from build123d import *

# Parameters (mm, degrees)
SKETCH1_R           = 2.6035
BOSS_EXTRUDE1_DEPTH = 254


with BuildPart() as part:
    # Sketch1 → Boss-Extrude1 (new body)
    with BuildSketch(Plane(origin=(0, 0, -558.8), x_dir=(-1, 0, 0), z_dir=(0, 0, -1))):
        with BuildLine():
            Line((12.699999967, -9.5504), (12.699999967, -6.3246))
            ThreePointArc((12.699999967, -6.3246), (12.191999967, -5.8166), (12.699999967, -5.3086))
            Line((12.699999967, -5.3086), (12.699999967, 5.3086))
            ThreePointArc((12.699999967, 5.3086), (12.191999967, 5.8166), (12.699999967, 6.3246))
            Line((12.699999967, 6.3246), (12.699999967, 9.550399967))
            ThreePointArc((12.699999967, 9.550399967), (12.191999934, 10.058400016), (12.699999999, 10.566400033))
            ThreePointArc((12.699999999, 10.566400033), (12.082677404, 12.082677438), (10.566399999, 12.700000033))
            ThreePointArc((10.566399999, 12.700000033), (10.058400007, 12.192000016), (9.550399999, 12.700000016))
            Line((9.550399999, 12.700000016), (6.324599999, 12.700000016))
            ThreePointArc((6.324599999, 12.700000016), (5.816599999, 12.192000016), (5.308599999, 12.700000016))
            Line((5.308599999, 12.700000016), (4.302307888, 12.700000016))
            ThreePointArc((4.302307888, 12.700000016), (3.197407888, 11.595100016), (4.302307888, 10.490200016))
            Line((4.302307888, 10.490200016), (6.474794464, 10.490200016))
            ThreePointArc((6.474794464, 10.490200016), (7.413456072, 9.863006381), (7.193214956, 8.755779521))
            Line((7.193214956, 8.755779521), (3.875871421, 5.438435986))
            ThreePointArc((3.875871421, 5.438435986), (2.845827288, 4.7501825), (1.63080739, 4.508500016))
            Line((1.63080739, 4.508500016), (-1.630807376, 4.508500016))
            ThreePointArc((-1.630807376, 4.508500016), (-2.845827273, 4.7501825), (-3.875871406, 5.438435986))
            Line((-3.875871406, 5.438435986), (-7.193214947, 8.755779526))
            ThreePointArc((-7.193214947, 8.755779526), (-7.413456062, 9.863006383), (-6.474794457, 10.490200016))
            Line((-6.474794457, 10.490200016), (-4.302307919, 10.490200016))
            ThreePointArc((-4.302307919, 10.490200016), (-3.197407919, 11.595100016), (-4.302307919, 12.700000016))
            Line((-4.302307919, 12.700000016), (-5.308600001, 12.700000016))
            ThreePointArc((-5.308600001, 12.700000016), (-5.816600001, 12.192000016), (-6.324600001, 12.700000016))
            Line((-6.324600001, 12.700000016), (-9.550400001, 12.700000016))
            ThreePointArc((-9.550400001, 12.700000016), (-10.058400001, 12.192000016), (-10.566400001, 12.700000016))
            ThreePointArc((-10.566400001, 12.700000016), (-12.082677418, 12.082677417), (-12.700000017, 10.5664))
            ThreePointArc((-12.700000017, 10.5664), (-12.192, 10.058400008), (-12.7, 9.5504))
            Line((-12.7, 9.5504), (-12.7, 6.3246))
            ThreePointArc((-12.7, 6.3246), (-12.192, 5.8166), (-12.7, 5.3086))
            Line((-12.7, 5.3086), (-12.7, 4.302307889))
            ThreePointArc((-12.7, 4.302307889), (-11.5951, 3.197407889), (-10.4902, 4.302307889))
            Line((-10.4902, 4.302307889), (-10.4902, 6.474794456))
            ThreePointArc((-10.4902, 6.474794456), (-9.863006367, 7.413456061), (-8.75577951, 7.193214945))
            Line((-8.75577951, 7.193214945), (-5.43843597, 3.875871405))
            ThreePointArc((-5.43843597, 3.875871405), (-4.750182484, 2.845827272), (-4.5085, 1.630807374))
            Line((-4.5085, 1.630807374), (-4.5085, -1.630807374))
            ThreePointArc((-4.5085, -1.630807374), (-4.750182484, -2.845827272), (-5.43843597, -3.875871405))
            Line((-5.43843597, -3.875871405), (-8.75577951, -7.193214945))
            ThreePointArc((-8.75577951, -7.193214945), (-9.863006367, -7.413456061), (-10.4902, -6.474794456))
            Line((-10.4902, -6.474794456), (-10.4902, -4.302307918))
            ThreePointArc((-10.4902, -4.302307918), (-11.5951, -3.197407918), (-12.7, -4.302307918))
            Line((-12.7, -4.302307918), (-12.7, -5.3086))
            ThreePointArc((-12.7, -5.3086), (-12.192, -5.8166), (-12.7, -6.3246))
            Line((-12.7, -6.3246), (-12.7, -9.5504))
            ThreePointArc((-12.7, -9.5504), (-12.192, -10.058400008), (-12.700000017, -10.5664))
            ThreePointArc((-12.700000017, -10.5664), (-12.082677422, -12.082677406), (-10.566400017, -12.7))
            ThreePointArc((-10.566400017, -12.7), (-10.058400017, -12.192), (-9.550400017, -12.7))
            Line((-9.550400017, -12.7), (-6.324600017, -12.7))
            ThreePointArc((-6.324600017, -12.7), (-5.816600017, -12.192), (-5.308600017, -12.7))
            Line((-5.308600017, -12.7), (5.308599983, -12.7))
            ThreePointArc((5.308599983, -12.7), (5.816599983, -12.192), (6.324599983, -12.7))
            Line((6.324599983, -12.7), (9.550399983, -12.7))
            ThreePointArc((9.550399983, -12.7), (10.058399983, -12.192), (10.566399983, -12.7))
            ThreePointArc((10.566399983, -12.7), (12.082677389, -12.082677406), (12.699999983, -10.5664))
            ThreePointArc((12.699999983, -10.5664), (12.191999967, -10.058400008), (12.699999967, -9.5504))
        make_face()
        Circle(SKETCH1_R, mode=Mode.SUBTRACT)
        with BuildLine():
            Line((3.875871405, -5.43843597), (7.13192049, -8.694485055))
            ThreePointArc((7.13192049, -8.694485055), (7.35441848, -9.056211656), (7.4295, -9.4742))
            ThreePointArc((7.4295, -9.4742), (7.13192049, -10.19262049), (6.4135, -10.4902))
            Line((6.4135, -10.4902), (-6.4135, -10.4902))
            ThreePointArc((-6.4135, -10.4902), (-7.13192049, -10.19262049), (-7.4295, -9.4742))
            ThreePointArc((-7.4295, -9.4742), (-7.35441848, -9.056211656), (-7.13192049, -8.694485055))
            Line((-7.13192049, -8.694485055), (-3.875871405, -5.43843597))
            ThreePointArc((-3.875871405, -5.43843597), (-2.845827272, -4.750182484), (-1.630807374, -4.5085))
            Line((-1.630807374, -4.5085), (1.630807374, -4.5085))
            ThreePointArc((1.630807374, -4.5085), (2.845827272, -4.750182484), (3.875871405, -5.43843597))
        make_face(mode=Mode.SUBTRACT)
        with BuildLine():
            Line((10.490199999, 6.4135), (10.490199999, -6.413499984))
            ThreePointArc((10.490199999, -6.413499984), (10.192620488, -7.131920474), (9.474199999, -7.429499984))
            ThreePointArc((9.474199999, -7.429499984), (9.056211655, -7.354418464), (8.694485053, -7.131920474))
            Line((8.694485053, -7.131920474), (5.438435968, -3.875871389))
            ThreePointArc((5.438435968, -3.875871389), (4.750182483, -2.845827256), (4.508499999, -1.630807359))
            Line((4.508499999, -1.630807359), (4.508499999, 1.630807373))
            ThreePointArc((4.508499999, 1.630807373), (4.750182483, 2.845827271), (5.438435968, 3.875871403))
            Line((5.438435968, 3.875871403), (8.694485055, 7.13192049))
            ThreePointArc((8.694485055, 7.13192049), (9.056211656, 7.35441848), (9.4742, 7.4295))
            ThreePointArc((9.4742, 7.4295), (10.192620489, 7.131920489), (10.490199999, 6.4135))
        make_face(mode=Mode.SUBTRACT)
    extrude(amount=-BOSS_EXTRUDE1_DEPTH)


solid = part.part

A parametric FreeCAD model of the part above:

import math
import FreeCAD as App
import Part
import Sketcher

V = App.Vector
Q = App.Units.Quantity

doc = App.newDocument("Part")
body = doc.addObject("PartDesign::Body", "Body")

# Sketch on XY plane
sketch1 = body.newObject("Sketcher::SketchObject", "Sketch")
sketch1.AttachmentSupport = (doc.getObject("XY_Plane"), [""])
sketch1.MapMode = "FlatFace"
sketch1.AttachmentOffset = App.Placement(V(0, 0, -22 * 25.4), App.Rotation())
sketch1.addGeometry([
    Part.LineSegment(V(-12.7, -9.6, 0), V(-12.7, -6.3, 0)),  # 0
    Part.ArcOfCircle(Part.Circle(V(-12.7, -5.8, 0), V(0, 0, 1), 0.5), math.radians(-90), math.radians(90)),  # 1
    Part.LineSegment(V(-12.7, -5.3, 0), V(-12.7, 5.3, 0)),  # 2
    Part.ArcOfCircle(Part.Circle(V(-12.7, 5.8, 0), V(0, 0, 1), 0.5), math.radians(-90), math.radians(90)),  # 3
    Part.LineSegment(V(-12.7, 6.3, 0), V(-12.7, 9.6, 0)),  # 4
    Part.ArcOfCircle(Part.Circle(V(-12.7, 10.1, 0), V(0, 0, 1), 0.5), math.radians(-90), math.radians(90)),  # 5
    Part.ArcOfCircle(Part.Circle(V(-10.6, 10.6, 0), V(0, 0, 1), 2.1), math.radians(89), math.radians(181)),  # 6
    Part.ArcOfCircle(Part.Circle(V(-10.1, 12.7, 0), V(0, 0, 1), 0.5), math.radians(180), math.radians(360)),  # 7
    Part.LineSegment(V(-9.6, 12.7, 0), V(-6.3, 12.7, 0)),  # 8
    Part.ArcOfCircle(Part.Circle(V(-5.8, 12.7, 0), V(0, 0, 1), 0.5), math.radians(180), math.radians(360)),  # 9
    Part.LineSegment(V(-5.3, 12.7, 0), V(-4.3, 12.7, 0)),  # 10
    Part.ArcOfCircle(Part.Circle(V(-4.3, 11.6, 0), V(0, 0, 1), 1.1), math.radians(-90), math.radians(90)),  # 11
    Part.LineSegment(V(-4.3, 10.5, 0), V(-6.5, 10.5, 0)),  # 12
    Part.ArcOfCircle(Part.Circle(V(-6.5, 9.5, 0), V(0, 0, 1), 1), math.radians(90), math.radians(225)),  # 13
    Part.LineSegment(V(-7.2, 8.8, 0), V(-3.9, 5.4, 0)),  # 14
    Part.ArcOfCircle(Part.Circle(V(-1.6, 7.7, 0), V(0, 0, 1), 3.2), math.radians(-135), math.radians(-90)),  # 15
    Part.LineSegment(V(-1.6, 4.5, 0), V(1.6, 4.5, 0)),  # 16
    Part.ArcOfCircle(Part.Circle(V(1.6, 7.7, 0), V(0, 0, 1), 3.2), math.radians(-90), math.radians(-45)),  # 17
    Part.LineSegment(V(3.9, 5.4, 0), V(7.2, 8.8, 0)),  # 18
    Part.ArcOfCircle(Part.Circle(V(6.5, 9.5, 0), V(0, 0, 1), 1), math.radians(-45), math.radians(90)),  # 19
    Part.LineSegment(V(6.5, 10.5, 0), V(4.3, 10.5, 0)),  # 20
    Part.ArcOfCircle(Part.Circle(V(4.3, 11.6, 0), V(0, 0, 1), 1.1), math.radians(90), math.radians(270)),  # 21
    Part.LineSegment(V(4.3, 12.7, 0), V(5.3, 12.7, 0)),  # 22
    Part.ArcOfCircle(Part.Circle(V(5.8, 12.7, 0), V(0, 0, 1), 0.5), math.radians(180), math.radians(360)),  # 23
    Part.LineSegment(V(6.3, 12.7, 0), V(9.6, 12.7, 0)),  # 24
    Part.ArcOfCircle(Part.Circle(V(10.1, 12.7, 0), V(0, 0, 1), 0.5), math.radians(180), math.radians(360)),  # 25
    Part.ArcOfCircle(Part.Circle(V(10.6, 10.6, 0), V(0, 0, 1), 2.1), math.radians(-1), math.radians(91)),  # 26
    Part.ArcOfCircle(Part.Circle(V(12.7, 10.1, 0), V(0, 0, 1), 0.5), math.radians(90), math.radians(270)),  # 27
    Part.LineSegment(V(12.7, 9.6, 0), V(12.7, 6.3, 0)),  # 28
    Part.ArcOfCircle(Part.Circle(V(12.7, 5.8, 0), V(0, 0, 1), 0.5), math.radians(90), math.radians(270)),  # 29
    Part.LineSegment(V(12.7, 5.3, 0), V(12.7, 4.3, 0)),  # 30
    Part.ArcOfCircle(Part.Circle(V(11.6, 4.3, 0), V(0, 0, 1), 1.1), math.radians(180), math.radians(360)),  # 31
    Part.LineSegment(V(10.5, 4.3, 0), V(10.5, 6.5, 0)),  # 32
    Part.ArcOfCircle(Part.Circle(V(9.5, 6.5, 0), V(0, 0, 1), 1), math.radians(0), math.radians(135)),  # 33
    Part.LineSegment(V(8.8, 7.2, 0), V(5.4, 3.9, 0)),  # 34
    Part.ArcOfCircle(Part.Circle(V(7.7, 1.6, 0), V(0, 0, 1), 3.2), math.radians(135), math.radians(180)),  # 35
    Part.LineSegment(V(4.5, 1.6, 0), V(4.5, -1.6, 0)),  # 36
    Part.ArcOfCircle(Part.Circle(V(7.7, -1.6, 0), V(0, 0, 1), 3.2), math.radians(180), math.radians(225)),  # 37
    Part.LineSegment(V(5.4, -3.9, 0), V(8.8, -7.2, 0)),  # 38
    Part.ArcOfCircle(Part.Circle(V(9.5, -6.5, 0), V(0, 0, 1), 1), math.radians(-135), math.radians(0)),  # 39
    Part.LineSegment(V(10.5, -6.5, 0), V(10.5, -4.3, 0)),  # 40
    Part.ArcOfCircle(Part.Circle(V(11.6, -4.3, 0), V(0, 0, 1), 1.1), math.radians(0), math.radians(180)),  # 41
    Part.LineSegment(V(12.7, -4.3, 0), V(12.7, -5.3, 0)),  # 42
    Part.ArcOfCircle(Part.Circle(V(12.7, -5.8, 0), V(0, 0, 1), 0.5), math.radians(90), math.radians(270)),  # 43
    Part.LineSegment(V(12.7, -6.3, 0), V(12.7, -9.6, 0)),  # 44
    Part.ArcOfCircle(Part.Circle(V(12.7, -10.1, 0), V(0, 0, 1), 0.5), math.radians(90), math.radians(270)),  # 45
    Part.ArcOfCircle(Part.Circle(V(10.6, -10.6, 0), V(0, 0, 1), 2.1), math.radians(-91), math.radians(1)),  # 46
    Part.ArcOfCircle(Part.Circle(V(10.1, -12.7, 0), V(0, 0, 1), 0.5), math.radians(0), math.radians(180)),  # 47
    Part.LineSegment(V(9.6, -12.7, 0), V(6.3, -12.7, 0)),  # 48
    Part.ArcOfCircle(Part.Circle(V(5.8, -12.7, 0), V(0, 0, 1), 0.5), math.radians(0), math.radians(180)),  # 49
    Part.LineSegment(V(5.3, -12.7, 0), V(-5.3, -12.7, 0)),  # 50
    Part.ArcOfCircle(Part.Circle(V(-5.8, -12.7, 0), V(0, 0, 1), 0.5), math.radians(0), math.radians(180)),  # 51
    Part.LineSegment(V(-6.3, -12.7, 0), V(-9.6, -12.7, 0)),  # 52
    Part.ArcOfCircle(Part.Circle(V(-10.1, -12.7, 0), V(0, 0, 1), 0.5), math.radians(0), math.radians(180)),  # 53
    Part.ArcOfCircle(Part.Circle(V(-10.6, -10.6, 0), V(0, 0, 1), 2.1), math.radians(179), math.radians(271)),  # 54
    Part.ArcOfCircle(Part.Circle(V(-12.7, -10.1, 0), V(0, 0, 1), 0.5), math.radians(-90), math.radians(90)),  # 55
    Part.ArcOfCircle(Part.Circle(V(-1.6, -7.7, 0), V(0, 0, 1), 3.2), math.radians(90), math.radians(135)),  # 56
    Part.LineSegment(V(-3.9, -5.4, 0), V(-7.1, -8.7, 0)),  # 57
    Part.ArcOfCircle(Part.Circle(V(-6.3, -9.5, 0), V(0, 0, 1), 1.1), math.radians(138), math.radians(181)),  # 58
    Part.ArcOfCircle(Part.Circle(V(-6.4, -9.5, 0), V(0, 0, 1), 1), math.radians(180), math.radians(270)),  # 59
    Part.LineSegment(V(-6.4, -10.5, 0), V(6.4, -10.5, 0)),  # 60
    Part.ArcOfCircle(Part.Circle(V(6.4, -9.5, 0), V(0, 0, 1), 1), math.radians(-90), math.radians(0)),  # 61
    Part.ArcOfCircle(Part.Circle(V(6.3, -9.5, 0), V(0, 0, 1), 1.1), math.radians(-1), math.radians(42)),  # 62
    Part.LineSegment(V(7.1, -8.7, 0), V(3.9, -5.4, 0)),  # 63
    Part.ArcOfCircle(Part.Circle(V(1.6, -7.7, 0), V(0, 0, 1), 3.2), math.radians(45), math.radians(90)),  # 64
    Part.LineSegment(V(1.6, -4.5, 0), V(-1.6, -4.5, 0)),  # 65
    Part.Circle(V(0, 0, 0), V(0, 0, 1), 2.6),  # 66
    Part.ArcOfCircle(Part.Circle(V(-9.5, 6.4, 0), V(0, 0, 1), 1), math.radians(90), math.radians(180)),  # 67
    Part.LineSegment(V(-10.5, 6.4, 0), V(-10.5, -6.4, 0)),  # 68
    Part.ArcOfCircle(Part.Circle(V(-9.5, -6.4, 0), V(0, 0, 1), 1), math.radians(-180), math.radians(-90)),  # 69
    Part.ArcOfCircle(Part.Circle(V(-9.5, -6.3, 0), V(0, 0, 1), 1.1), math.radians(-91), math.radians(-48)),  # 70
    Part.LineSegment(V(-8.7, -7.1, 0), V(-5.4, -3.9, 0)),  # 71
    Part.ArcOfCircle(Part.Circle(V(-7.7, -1.6, 0), V(0, 0, 1), 3.2), math.radians(-45), math.radians(0)),  # 72
    Part.LineSegment(V(-4.5, -1.6, 0), V(-4.5, 1.6, 0)),  # 73
    Part.ArcOfCircle(Part.Circle(V(-7.7, 1.6, 0), V(0, 0, 1), 3.2), math.radians(0), math.radians(45)),  # 74
    Part.LineSegment(V(-5.4, 3.9, 0), V(-8.7, 7.1, 0)),  # 75
    Part.ArcOfCircle(Part.Circle(V(-9.5, 6.3, 0), V(0, 0, 1), 1.1), math.radians(48), math.radians(91)),  # 76
], False)
sketch1.addConstraint([
    Sketcher.Constraint("Coincident", 0, 2, 1, 1),
    Sketcher.Constraint("Coincident", 1, 2, 2, 1),
    Sketcher.Constraint("Coincident", 2, 2, 3, 1),
    Sketcher.Constraint("Coincident", 3, 2, 4, 1),
    Sketcher.Constraint("Coincident", 4, 2, 5, 1),
    Sketcher.Constraint("Coincident", 5, 2, 6, 2),
    Sketcher.Constraint("Coincident", 6, 1, 7, 1),
    Sketcher.Constraint("Coincident", 7, 2, 8, 1),
    Sketcher.Constraint("Coincident", 8, 2, 9, 1),
    Sketcher.Constraint("Coincident", 9, 2, 10, 1),
    Sketcher.Constraint("Tangent", 10, 2, 11, 2),
    Sketcher.Constraint("Tangent", 11, 1, 12, 1),
    Sketcher.Constraint("Tangent", 12, 2, 13, 1),
    Sketcher.Constraint("Tangent", 13, 2, 14, 1),
    Sketcher.Constraint("Tangent", 14, 2, 15, 1),
    Sketcher.Constraint("Tangent", 15, 2, 16, 1),
    Sketcher.Constraint("Tangent", 16, 2, 17, 1),
    Sketcher.Constraint("Tangent", 17, 2, 18, 1),
    Sketcher.Constraint("Tangent", 18, 2, 19, 1),
    Sketcher.Constraint("Tangent", 19, 2, 20, 1),
    Sketcher.Constraint("Tangent", 20, 2, 21, 2),
    Sketcher.Constraint("Tangent", 21, 1, 22, 1),
    Sketcher.Constraint("Coincident", 22, 2, 23, 1),
    Sketcher.Constraint("Coincident", 23, 2, 24, 1),
    Sketcher.Constraint("Coincident", 24, 2, 25, 1),
    Sketcher.Constraint("Coincident", 25, 2, 26, 2),
    Sketcher.Constraint("Coincident", 26, 1, 27, 1),
    Sketcher.Constraint("Coincident", 27, 2, 28, 1),
    Sketcher.Constraint("Coincident", 28, 2, 29, 1),
    Sketcher.Constraint("Coincident", 29, 2, 30, 1),
    Sketcher.Constraint("Tangent", 30, 2, 31, 2),
    Sketcher.Constraint("Tangent", 31, 1, 32, 1),
    Sketcher.Constraint("Tangent", 32, 2, 33, 1),
    Sketcher.Constraint("Tangent", 33, 2, 34, 1),
    Sketcher.Constraint("Tangent", 34, 2, 35, 1),
    Sketcher.Constraint("Tangent", 35, 2, 36, 1),
    Sketcher.Constraint("Tangent", 36, 2, 37, 1),
    Sketcher.Constraint("Tangent", 37, 2, 38, 1),
    Sketcher.Constraint("Tangent", 38, 2, 39, 1),
    Sketcher.Constraint("Tangent", 39, 2, 40, 1),
    Sketcher.Constraint("Tangent", 40, 2, 41, 2),
    Sketcher.Constraint("Tangent", 41, 1, 42, 1),
    Sketcher.Constraint("Coincident", 42, 2, 43, 1),
    Sketcher.Constraint("Coincident", 43, 2, 44, 1),
    Sketcher.Constraint("Coincident", 44, 2, 45, 1),
    Sketcher.Constraint("Coincident", 45, 2, 46, 2),
    Sketcher.Constraint("Coincident", 46, 1, 47, 1),
    Sketcher.Constraint("Coincident", 47, 2, 48, 1),
    Sketcher.Constraint("Coincident", 48, 2, 49, 1),
    Sketcher.Constraint("Coincident", 49, 2, 50, 1),
    Sketcher.Constraint("Coincident", 50, 2, 51, 1),
    Sketcher.Constraint("Coincident", 51, 2, 52, 1),
    Sketcher.Constraint("Coincident", 52, 2, 53, 1),
    Sketcher.Constraint("Coincident", 53, 2, 54, 2),
    Sketcher.Constraint("Coincident", 54, 1, 55, 1),
    Sketcher.Constraint("Coincident", 55, 2, 0, 1),
    Sketcher.Constraint("Tangent", 56, 2, 57, 1),
    Sketcher.Constraint("Coincident", 57, 2, 58, 1),
    Sketcher.Constraint("Coincident", 58, 2, 59, 1),
    Sketcher.Constraint("Tangent", 59, 2, 60, 1),
    Sketcher.Constraint("Tangent", 60, 2, 61, 1),
    Sketcher.Constraint("Coincident", 61, 2, 62, 1),
    Sketcher.Constraint("Coincident", 62, 2, 63, 1),
    Sketcher.Constraint("Tangent", 63, 2, 64, 1),
    Sketcher.Constraint("Tangent", 64, 2, 65, 1),
    Sketcher.Constraint("Tangent", 65, 2, 56, 1),
    Sketcher.Constraint("Tangent", 67, 2, 68, 1),
    Sketcher.Constraint("Tangent", 68, 2, 69, 1),
    Sketcher.Constraint("Coincident", 69, 2, 70, 1),
    Sketcher.Constraint("Coincident", 70, 2, 71, 1),
    Sketcher.Constraint("Tangent", 71, 2, 72, 1),
    Sketcher.Constraint("Tangent", 72, 2, 73, 1),
    Sketcher.Constraint("Tangent", 73, 2, 74, 1),
    Sketcher.Constraint("Tangent", 74, 2, 75, 1),
    Sketcher.Constraint("Coincident", 75, 2, 76, 1),
    Sketcher.Constraint("Coincident", 76, 2, 67, 1),
    Sketcher.Constraint("Vertical", 0),
    Sketcher.Constraint("Vertical", 2),
    Sketcher.Constraint("Vertical", 4),
    Sketcher.Constraint("Horizontal", 8),
    Sketcher.Constraint("Horizontal", 10),
    Sketcher.Constraint("Horizontal", 12),
    Sketcher.Constraint("Horizontal", 16),
    Sketcher.Constraint("Horizontal", 20),
    Sketcher.Constraint("Horizontal", 22),
    Sketcher.Constraint("Horizontal", 24),
    Sketcher.Constraint("Vertical", 28),
    Sketcher.Constraint("Vertical", 30),
    Sketcher.Constraint("Vertical", 32),
    Sketcher.Constraint("Vertical", 36),
    Sketcher.Constraint("Vertical", 40),
    Sketcher.Constraint("Vertical", 42),
    Sketcher.Constraint("Vertical", 44),
    Sketcher.Constraint("Horizontal", 48),
    Sketcher.Constraint("Horizontal", 50),
    Sketcher.Constraint("Horizontal", 52),
    Sketcher.Constraint("Horizontal", 60),
    Sketcher.Constraint("Horizontal", 65),
    Sketcher.Constraint("Vertical", 68),
    Sketcher.Constraint("Vertical", 73),
    Sketcher.Constraint("Coincident", 66, 3, -1, 1),
    Sketcher.Constraint("Equal", 1, 3),
    Sketcher.Constraint("Equal", 3, 5),
    Sketcher.Constraint("Equal", 5, 7),
    Sketcher.Constraint("Equal", 7, 9),
    Sketcher.Constraint("Equal", 15, 17),
    Sketcher.Constraint("Equal", 13, 19),
    Sketcher.Constraint("Equal", 11, 21),
    Sketcher.Constraint("Equal", 9, 23),
    Sketcher.Constraint("Equal", 23, 25),
    Sketcher.Constraint("Equal", 6, 26),
    Sketcher.Constraint("Equal", 25, 27),
    Sketcher.Constraint("Equal", 27, 29),
    Sketcher.Constraint("Equal", 21, 31),
    Sketcher.Constraint("Equal", 19, 33),
    Sketcher.Constraint("Equal", 17, 35),
    Sketcher.Constraint("Equal", 35, 37),
    Sketcher.Constraint("Equal", 33, 39),
    Sketcher.Constraint("Equal", 31, 41),
    Sketcher.Constraint("Equal", 29, 43),
    Sketcher.Constraint("Equal", 43, 45),
    Sketcher.Constraint("Equal", 26, 46),
    Sketcher.Constraint("Equal", 45, 47),
    Sketcher.Constraint("Equal", 47, 49),
    Sketcher.Constraint("Equal", 49, 51),
    Sketcher.Constraint("Equal", 51, 53),
    Sketcher.Constraint("Equal", 46, 54),
    Sketcher.Constraint("Equal", 53, 55),
    Sketcher.Constraint("Equal", 37, 56),
    Sketcher.Constraint("Equal", 39, 59),
    Sketcher.Constraint("Equal", 59, 61),
    Sketcher.Constraint("Equal", 58, 62),
    Sketcher.Constraint("Equal", 56, 64),
    Sketcher.Constraint("Equal", 61, 67),
    Sketcher.Constraint("Equal", 67, 69),
    Sketcher.Constraint("Equal", 62, 70),
    Sketcher.Constraint("Equal", 64, 72),
    Sketcher.Constraint("Equal", 72, 74),
    Sketcher.Constraint("Equal", 70, 76),
    Sketcher.Constraint("Symmetric", 1, 3, 29, 3, -1, 1),
    Sketcher.Constraint("Symmetric", 3, 3, 43, 3, -1, 1),
    Sketcher.Constraint("Symmetric", 5, 3, 45, 3, -1, 1),
    Sketcher.Constraint("Symmetric", 6, 3, 46, 3, -1, 1),
    Sketcher.Constraint("Symmetric", 7, 3, 47, 3, -1, 1),
    Sketcher.Constraint("Symmetric", 9, 3, 49, 3, -1, 1),
    Sketcher.Constraint("Symmetric", 23, 3, 51, 3, -1, 1),
    Sketcher.Constraint("Symmetric", 25, 3, 53, 3, -1, 1),
    Sketcher.Constraint("Symmetric", 26, 3, 54, 3, -1, 1),
    Sketcher.Constraint("Symmetric", 27, 3, 55, 3, -1, 1),
    Sketcher.Constraint("Symmetric", 17, 3, 56, 3, -1, 1),
    Sketcher.Constraint("Symmetric", 35, 3, 72, 3, -1, 1),
    Sketcher.Constraint("Symmetric", 14, 2, 63, 2, -1, 1),
    Sketcher.Constraint("Symmetric", 37, 2, 74, 2, -1, 1),
    Sketcher.Constraint("Symmetric", 13, 3, 19, 3, -2),
    Sketcher.Constraint("Symmetric", 9, 3, 23, 3, -2),
    Sketcher.Constraint("Symmetric", 7, 3, 25, 3, -2),
    Sketcher.Constraint("Symmetric", 6, 3, 26, 3, -2),
    Sketcher.Constraint("Symmetric", 5, 3, 27, 3, -2),
    Sketcher.Constraint("Symmetric", 3, 3, 29, 3, -2),
    Sketcher.Constraint("Symmetric", 58, 3, 62, 3, -2),
    Sketcher.Constraint("Symmetric", 56, 2, 63, 2, -2),
    Sketcher.Constraint("Symmetric", 37, 2, 71, 2, -2),
    Sketcher.Constraint("Symmetric", 33, 3, 39, 3, -1),
    Sketcher.Constraint("Symmetric", 70, 3, 76, 3, -1),
    Sketcher.Constraint("Perpendicular", 14, 18),
    Sketcher.Constraint("Parallel", 18, 34),
    Sketcher.Constraint("Horizontal", 7, 3, 9, 3),
    Sketcher.Constraint("Horizontal", 25, 3, 6, 1),
    Sketcher.Constraint("Horizontal", 6, 1, 7, 2),
    Sketcher.Constraint("Horizontal", 8, 2, 9, 2),
    Sketcher.Constraint("Horizontal", 22, 2, 23, 2),
    Sketcher.Constraint("Horizontal", 46, 1, 47, 2),
    Sketcher.Constraint("Horizontal", 48, 2, 49, 2),
    Sketcher.Constraint("Horizontal", 50, 2, 51, 2),
    Sketcher.Constraint("Horizontal", 61, 3, 58, 2),
    Sketcher.Constraint("Horizontal", 58, 2, 61, 2),
    Sketcher.Constraint("Vertical", 3, 3, 5, 3),
    Sketcher.Constraint("Vertical", 55, 3, 0, 2),
    Sketcher.Constraint("Vertical", 0, 2, 1, 2),
    Sketcher.Constraint("Vertical", 2, 2, 3, 2),
    Sketcher.Constraint("Vertical", 4, 2, 5, 2),
    Sketcher.Constraint("Vertical", 26, 1, 27, 2),
    Sketcher.Constraint("Vertical", 28, 2, 29, 2),
    Sketcher.Constraint("Vertical", 42, 2, 43, 2),
    Sketcher.Constraint("Vertical", 67, 3, 69, 2),
    Sketcher.Constraint("Vertical", 69, 2, 76, 2),
    Sketcher.Constraint("Equal", 12, 20),
    Sketcher.Constraint("Equal", 52, 0),
    Sketcher.Constraint("Equal", 50, 2),
    Sketcher.Constraint("Equal", 22, 30),
    Sketcher.Constraint("Equal", 20, 32),
    Sketcher.Constraint("Equal", 65, 36),
    Sketcher.Constraint("Equal", 32, 40),
    Sketcher.Constraint("Equal", 60, 68),
    Sketcher.Constraint("Equal", 63, 71),
    Sketcher.Constraint("Radius", 1, Q("0.02 in")),
    Sketcher.Constraint("Radius", 13, Q("0.04 in")),
    Sketcher.Constraint("Diameter", 66, Q("0.205 in")),
    Sketcher.Constraint("Radius", 6, Q("0.083 in")),
    Sketcher.Constraint("Radius", 15, Q("0.125 in")),
    Sketcher.Constraint("Radius", 58, Q("0.045 in")),
    Sketcher.Constraint("DistanceX", 1, 3, -1, 1, Q("0.5 in")),
    Sketcher.Constraint("DistanceY", -1, 1, 7, 3, Q("0.5 in")),
    Sketcher.Constraint("Radius", 11, Q("0.0435 in")),
    Sketcher.Constraint("DistanceX", 8, 1, 8, 2, Q("0.127 in")),
    Sketcher.Constraint("DistanceX", 50, 2, 50, 1, Q("0.418 in")),
    Sketcher.Constraint("DistanceX", 60, 1, 60, 2, Q("0.505 in")),
    Sketcher.Constraint("DistanceY", 59, 3, -1, 1, Q("0.373 in")),
    Sketcher.Constraint("DistanceX", 67, 3, -1, 1, Q("0.373 in")),
    Sketcher.Constraint("DistanceY", -1, 1, 15, 3, Q("0.3025 in")),
    Sketcher.Constraint("Distance", 57, 4.604749),
    Sketcher.Constraint("DistanceX", 10, 1, 10, 2, 1.006292),
    Sketcher.Constraint("DistanceX", 12, 2, 12, 1, 2.172487),
])
pad1 = body.newObject("PartDesign::Pad", "Pad")
pad1.Profile = sketch1
pad1.Length = Q("10 in")

doc.recompute()
